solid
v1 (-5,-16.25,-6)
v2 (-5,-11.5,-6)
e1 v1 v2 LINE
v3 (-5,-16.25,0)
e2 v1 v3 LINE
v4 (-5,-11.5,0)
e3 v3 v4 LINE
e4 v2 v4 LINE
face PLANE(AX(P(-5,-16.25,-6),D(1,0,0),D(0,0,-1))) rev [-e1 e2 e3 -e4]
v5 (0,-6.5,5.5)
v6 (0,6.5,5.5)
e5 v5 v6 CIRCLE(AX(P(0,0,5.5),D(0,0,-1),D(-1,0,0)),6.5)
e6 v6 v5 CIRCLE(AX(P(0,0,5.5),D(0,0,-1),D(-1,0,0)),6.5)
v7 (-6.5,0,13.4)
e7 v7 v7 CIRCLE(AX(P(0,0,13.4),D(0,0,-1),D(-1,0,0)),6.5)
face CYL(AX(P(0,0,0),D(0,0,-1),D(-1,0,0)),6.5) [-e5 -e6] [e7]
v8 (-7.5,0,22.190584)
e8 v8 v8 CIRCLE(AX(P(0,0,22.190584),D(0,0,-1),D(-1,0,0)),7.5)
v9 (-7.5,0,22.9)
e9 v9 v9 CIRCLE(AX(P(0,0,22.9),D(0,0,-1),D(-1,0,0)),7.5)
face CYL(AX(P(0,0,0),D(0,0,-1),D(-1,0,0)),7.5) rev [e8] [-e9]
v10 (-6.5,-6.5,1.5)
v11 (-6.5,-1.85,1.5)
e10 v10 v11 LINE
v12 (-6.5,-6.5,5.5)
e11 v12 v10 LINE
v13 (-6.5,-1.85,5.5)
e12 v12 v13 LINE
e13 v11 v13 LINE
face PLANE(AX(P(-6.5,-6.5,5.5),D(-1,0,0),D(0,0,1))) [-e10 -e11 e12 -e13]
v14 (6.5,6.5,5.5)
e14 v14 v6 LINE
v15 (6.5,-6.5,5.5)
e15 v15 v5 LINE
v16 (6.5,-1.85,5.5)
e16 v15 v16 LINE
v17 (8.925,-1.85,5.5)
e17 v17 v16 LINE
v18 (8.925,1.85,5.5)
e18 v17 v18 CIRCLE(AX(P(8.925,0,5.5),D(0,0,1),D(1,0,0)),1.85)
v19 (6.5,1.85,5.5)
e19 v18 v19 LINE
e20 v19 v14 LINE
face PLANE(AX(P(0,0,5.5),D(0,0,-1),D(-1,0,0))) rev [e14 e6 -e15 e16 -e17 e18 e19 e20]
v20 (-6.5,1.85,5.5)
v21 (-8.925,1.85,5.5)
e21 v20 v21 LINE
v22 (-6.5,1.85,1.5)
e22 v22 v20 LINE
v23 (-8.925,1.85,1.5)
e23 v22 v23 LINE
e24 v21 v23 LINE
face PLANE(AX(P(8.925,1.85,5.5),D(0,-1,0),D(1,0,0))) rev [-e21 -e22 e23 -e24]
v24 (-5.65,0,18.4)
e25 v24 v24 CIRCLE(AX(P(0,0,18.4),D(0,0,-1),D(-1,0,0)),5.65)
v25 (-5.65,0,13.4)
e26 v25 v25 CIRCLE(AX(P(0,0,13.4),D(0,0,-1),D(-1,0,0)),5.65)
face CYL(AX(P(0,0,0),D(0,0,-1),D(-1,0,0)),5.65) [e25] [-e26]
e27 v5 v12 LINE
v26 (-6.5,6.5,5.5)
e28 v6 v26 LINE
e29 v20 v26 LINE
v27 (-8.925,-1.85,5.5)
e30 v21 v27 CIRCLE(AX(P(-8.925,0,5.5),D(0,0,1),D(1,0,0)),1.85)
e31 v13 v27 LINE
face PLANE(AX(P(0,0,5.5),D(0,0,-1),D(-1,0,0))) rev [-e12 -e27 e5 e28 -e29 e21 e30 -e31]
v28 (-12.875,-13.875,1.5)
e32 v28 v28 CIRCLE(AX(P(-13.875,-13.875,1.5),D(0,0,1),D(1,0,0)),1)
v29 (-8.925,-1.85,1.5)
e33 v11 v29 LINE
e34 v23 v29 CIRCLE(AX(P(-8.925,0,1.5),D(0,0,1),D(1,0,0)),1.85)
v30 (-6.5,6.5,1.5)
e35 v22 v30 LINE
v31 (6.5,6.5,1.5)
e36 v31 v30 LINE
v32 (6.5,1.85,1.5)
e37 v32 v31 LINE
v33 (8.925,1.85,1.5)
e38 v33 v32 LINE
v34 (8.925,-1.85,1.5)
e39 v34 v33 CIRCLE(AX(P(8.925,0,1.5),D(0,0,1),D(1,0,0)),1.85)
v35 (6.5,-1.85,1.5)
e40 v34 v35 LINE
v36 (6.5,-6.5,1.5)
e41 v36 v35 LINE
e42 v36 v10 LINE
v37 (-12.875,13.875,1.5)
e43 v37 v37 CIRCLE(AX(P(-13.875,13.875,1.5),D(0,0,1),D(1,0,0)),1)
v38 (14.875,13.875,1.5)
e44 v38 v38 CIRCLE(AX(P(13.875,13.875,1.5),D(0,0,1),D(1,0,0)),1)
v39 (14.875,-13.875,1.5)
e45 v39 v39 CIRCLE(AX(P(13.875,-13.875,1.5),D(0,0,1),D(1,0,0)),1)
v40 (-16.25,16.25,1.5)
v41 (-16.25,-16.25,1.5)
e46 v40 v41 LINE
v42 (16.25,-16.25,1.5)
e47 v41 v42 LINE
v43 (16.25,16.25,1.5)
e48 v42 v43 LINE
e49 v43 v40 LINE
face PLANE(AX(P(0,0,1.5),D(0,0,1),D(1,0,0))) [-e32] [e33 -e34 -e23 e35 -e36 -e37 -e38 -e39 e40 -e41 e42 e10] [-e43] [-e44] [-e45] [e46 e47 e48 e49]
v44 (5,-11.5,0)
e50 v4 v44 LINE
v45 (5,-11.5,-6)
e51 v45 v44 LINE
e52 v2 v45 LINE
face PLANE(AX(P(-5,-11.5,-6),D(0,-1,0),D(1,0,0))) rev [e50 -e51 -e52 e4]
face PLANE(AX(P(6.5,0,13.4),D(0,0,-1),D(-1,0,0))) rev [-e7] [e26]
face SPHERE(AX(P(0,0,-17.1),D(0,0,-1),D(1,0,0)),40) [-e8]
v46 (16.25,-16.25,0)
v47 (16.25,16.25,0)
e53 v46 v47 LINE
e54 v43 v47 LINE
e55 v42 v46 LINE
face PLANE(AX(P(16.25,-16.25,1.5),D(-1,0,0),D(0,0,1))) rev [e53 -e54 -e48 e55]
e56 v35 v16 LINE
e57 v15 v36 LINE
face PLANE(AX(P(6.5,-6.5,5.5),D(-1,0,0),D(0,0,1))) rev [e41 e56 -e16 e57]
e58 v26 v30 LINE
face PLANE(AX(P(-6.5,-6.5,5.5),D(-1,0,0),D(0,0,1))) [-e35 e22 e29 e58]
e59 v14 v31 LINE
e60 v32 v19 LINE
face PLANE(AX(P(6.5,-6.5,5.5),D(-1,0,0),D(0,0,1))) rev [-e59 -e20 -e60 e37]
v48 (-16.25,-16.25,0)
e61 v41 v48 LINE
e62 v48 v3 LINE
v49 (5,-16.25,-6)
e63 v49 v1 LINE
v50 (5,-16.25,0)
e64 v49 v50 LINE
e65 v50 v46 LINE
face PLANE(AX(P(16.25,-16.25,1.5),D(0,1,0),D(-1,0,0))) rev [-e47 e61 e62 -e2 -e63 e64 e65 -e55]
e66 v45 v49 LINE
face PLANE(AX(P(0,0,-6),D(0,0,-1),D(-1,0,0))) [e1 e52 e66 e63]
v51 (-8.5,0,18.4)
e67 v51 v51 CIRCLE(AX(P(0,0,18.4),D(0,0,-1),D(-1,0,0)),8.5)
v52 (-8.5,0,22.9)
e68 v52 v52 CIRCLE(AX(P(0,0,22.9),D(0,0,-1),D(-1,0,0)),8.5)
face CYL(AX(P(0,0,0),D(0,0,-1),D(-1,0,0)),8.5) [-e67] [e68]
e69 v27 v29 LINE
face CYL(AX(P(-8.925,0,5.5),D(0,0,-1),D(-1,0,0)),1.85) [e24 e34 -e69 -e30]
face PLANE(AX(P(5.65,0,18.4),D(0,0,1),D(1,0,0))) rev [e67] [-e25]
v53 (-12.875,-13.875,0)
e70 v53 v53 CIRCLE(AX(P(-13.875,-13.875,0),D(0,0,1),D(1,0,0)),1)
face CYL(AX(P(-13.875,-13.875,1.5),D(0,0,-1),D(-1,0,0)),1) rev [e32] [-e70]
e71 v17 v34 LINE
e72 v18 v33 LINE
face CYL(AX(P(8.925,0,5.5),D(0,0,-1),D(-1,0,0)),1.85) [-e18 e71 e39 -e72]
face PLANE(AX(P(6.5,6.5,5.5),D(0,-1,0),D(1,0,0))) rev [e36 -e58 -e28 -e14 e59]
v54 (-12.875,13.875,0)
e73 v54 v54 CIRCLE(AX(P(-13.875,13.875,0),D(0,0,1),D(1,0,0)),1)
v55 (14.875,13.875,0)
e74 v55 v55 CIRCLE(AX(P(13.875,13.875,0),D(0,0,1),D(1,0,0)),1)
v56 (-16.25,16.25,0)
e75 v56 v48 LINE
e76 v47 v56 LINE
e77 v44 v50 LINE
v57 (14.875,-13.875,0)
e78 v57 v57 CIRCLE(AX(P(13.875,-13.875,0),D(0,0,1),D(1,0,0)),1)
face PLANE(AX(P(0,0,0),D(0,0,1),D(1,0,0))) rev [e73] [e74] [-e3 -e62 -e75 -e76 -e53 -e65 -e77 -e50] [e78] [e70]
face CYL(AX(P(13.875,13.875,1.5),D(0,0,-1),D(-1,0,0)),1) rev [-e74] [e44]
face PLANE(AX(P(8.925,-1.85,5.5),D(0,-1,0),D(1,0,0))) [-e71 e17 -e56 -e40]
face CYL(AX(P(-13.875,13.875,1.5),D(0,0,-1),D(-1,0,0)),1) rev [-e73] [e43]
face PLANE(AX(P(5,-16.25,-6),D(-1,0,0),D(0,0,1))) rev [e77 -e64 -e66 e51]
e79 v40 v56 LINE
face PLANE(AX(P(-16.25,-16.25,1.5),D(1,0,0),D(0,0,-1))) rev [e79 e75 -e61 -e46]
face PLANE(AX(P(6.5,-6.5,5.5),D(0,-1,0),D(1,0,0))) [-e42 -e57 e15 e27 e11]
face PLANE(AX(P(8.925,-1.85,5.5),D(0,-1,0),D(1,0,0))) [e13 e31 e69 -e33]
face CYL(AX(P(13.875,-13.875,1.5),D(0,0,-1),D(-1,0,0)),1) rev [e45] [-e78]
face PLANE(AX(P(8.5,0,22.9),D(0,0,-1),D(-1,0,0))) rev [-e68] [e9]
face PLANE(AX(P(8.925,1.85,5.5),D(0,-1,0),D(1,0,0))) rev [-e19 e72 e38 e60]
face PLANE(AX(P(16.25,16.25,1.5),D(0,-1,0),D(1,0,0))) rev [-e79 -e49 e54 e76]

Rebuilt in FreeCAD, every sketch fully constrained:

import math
import FreeCAD as App
import Part
import Sketcher

V = App.Vector

doc = App.newDocument("Part")
body = doc.addObject("PartDesign::Body", "Body")

# Sketch on XY plane
sketch1 = body.newObject("Sketcher::SketchObject", "Sketch")
sketch1.AttachmentSupport = (doc.getObject("XY_Plane"), [""])
sketch1.MapMode = "FlatFace"
sketch1.addGeometry([
    Part.LineSegment(V(-16.25, 16.25, 0), V(-16.25, -16.25, 0)),  # 0
    Part.LineSegment(V(-16.25, -16.25, 0), V(16.25, -16.25, 0)),  # 1
    Part.LineSegment(V(16.25, -16.25, 0), V(16.25, 16.25, 0)),  # 2
    Part.LineSegment(V(16.25, 16.25, 0), V(-16.25, 16.25, 0)),  # 3
    Part.Circle(V(-13.875, -13.875, 0), V(0, 0, 1), 1),  # 4
    Part.Circle(V(13.875, -13.875, 0), V(0, 0, 1), 1),  # 5
    Part.Circle(V(-13.875, 13.875, 0), V(0, 0, 1), 1),  # 6
    Part.Circle(V(13.875, 13.875, 0), V(0, 0, 1), 1),  # 7
], False)
sketch1.addConstraint([
    Sketcher.Constraint("Coincident", 0, 2, 1, 1),
    Sketcher.Constraint("Coincident", 1, 2, 2, 1),
    Sketcher.Constraint("Coincident", 2, 2, 3, 1),
    Sketcher.Constraint("Coincident", 3, 2, 0, 1),
    Sketcher.Constraint("Vertical", 0),
    Sketcher.Constraint("Horizontal", 1),
    Sketcher.Constraint("Vertical", 2),
    Sketcher.Constraint("Horizontal", 3),
    Sketcher.Constraint("Equal", 4, 5),
    Sketcher.Constraint("Equal", 5, 6),
    Sketcher.Constraint("Equal", 6, 7),
    Sketcher.Constraint("Symmetric", 5, 3, 6, 3, -1, 1),
    Sketcher.Constraint("Symmetric", 4, 3, 7, 3, -1, 1),
    Sketcher.Constraint("Symmetric", 0, 2, 2, 2, -1, 1),
    Sketcher.Constraint("Symmetric", 4, 3, 5, 3, -2),
    Sketcher.Constraint("Equal", 3, 0),
    Sketcher.Constraint("Diameter", 4, 2.0),
    Sketcher.Constraint("DistanceX", 1, 1, 1, 2, 32.5),
    Sketcher.Constraint("DistanceX", 4, 3, 5, 3, 27.75),
    Sketcher.Constraint("DistanceY", 4, 3, 6, 3, 27.75),
])
pad1 = body.newObject("PartDesign::Pad", "Pad")
pad1.Profile = sketch1
pad1.Length = 1.5

# Sketch on XY plane
sketch2 = body.newObject("Sketcher::SketchObject", "Sketch001")
sketch2.AttachmentSupport = (doc.getObject("XY_Plane"), [""])
sketch2.MapMode = "FlatFace"
sketch2.AttachmentOffset = App.Placement(V(0, 0, 1.5), App.Rotation())
sketch2.addGeometry([
    Part.LineSegment(V(-6.5, -1.85, 0), V(-6.5, -6.5, 0)),  # 0
    Part.LineSegment(V(-6.5, -6.5, 0), V(6.5, -6.5, 0)),  # 1
    Part.LineSegment(V(6.5, -6.5, 0), V(6.5, -1.85, 0)),  # 2
    Part.LineSegment(V(6.5, -1.85, 0), V(8.925, -1.85, 0)),  # 3
    Part.ArcOfCircle(Part.Circle(V(8.925, 0, 0), V(0, 0, 1), 1.85), math.radians(-90), math.radians(90)),  # 4
    Part.LineSegment(V(8.925, 1.85, 0), V(6.5, 1.85, 0)),  # 5
    Part.LineSegment(V(6.5, 1.85, 0), V(6.5, 6.5, 0)),  # 6
    Part.LineSegment(V(6.5, 6.5, 0), V(-6.5, 6.5, 0)),  # 7
    Part.LineSegment(V(-6.5, 6.5, 0), V(-6.5, 1.85, 0)),  # 8
    Part.LineSegment(V(-6.5, 1.85, 0), V(-8.925, 1.85, 0)),  # 9
    Part.ArcOfCircle(Part.Circle(V(-8.925, 0, 0), V(0, 0, 1), 1.85), math.radians(90), math.radians(270)),  # 10
    Part.LineSegment(V(-8.925, -1.85, 0), V(-6.5, -1.85, 0)),  # 11
], False)
sketch2.addConstraint([
    Sketcher.Constraint("Coincident", 0, 2, 1, 1),
    Sketcher.Constraint("Coincident", 1, 2, 2, 1),
    Sketcher.Constraint("Coincident", 2, 2, 3, 1),
    Sketcher.Constraint("Tangent", 3, 2, 4, 1),
    Sketcher.Constraint("Tangent", 4, 2, 5, 1),
    Sketcher.Constraint("Coincident", 5, 2, 6, 1),
    Sketcher.Constraint("Coincident", 6, 2, 7, 1),
    Sketcher.Constraint("Coincident", 7, 2, 8, 1),
    Sketcher.Constraint("Coincident", 8, 2, 9, 1),
    Sketcher.Constraint("Tangent", 9, 2, 10, 1),
    Sketcher.Constraint("Tangent", 10, 2, 11, 1),
    Sketcher.Constraint("Coincident", 11, 2, 0, 1),
    Sketcher.Constraint("Vertical", 0),
    Sketcher.Constraint("Horizontal", 1),
    Sketcher.Constraint("Vertical", 2),
    Sketcher.Constraint("Horizontal", 3),
    Sketcher.Constraint("Horizontal", 5),
    Sketcher.Constraint("Vertical", 6),
    Sketcher.Constraint("Horizontal", 7),
    Sketcher.Constraint("Vertical", 8),
    Sketcher.Constraint("Horizontal", 9),
    Sketcher.Constraint("Horizontal", 11),
    Sketcher.Constraint("Equal", 4, 10),
    Sketcher.Constraint("Symmetric", 4, 3, 10, 3, -1, 1),
    Sketcher.Constraint("Symmetric", 0, 2, 6, 2, -1, 1),
    Sketcher.Constraint("Symmetric", 5, 2, 8, 2, -2),
    Sketcher.Constraint("Vertical", 2, 2, 5, 2),
    Sketcher.Constraint("DistanceX", 1, 1, 1, 2, 13.0),
    Sketcher.Constraint("Radius", 4, 1.85),
    Sketcher.Constraint("DistanceY", 0, 2, 7, 2, 13.0),
    Sketcher.Constraint("DistanceX", 3, 1, 3, 2, 2.425),
])
pad2 = body.newObject("PartDesign::Pad", "Pad001")
pad2.Profile = sketch2
pad2.Length = 4

# Sketch on XZ plane
sketch3 = body.newObject("Sketcher::SketchObject", "Sketch002")
sketch3.AttachmentSupport = (doc.getObject("XZ_Plane"), [""])
sketch3.MapMode = "FlatFace"
sketch3.addGeometry([
    Part.LineSegment(V(6.5, 5.5, 0), V(0, 5.5, 0)),  # 0
    Part.LineSegment(V(0, 5.5, 0), V(0, 22.9, 0)),  # 1
    Part.ArcOfCircle(Part.Circle(V(0, -17.1, 0), V(0, 0, 1), 40), math.radians(79.193077), math.radians(90)),  # 2
    Part.LineSegment(V(7.5, 22.190584, 0), V(7.5, 22.9, 0)),  # 3
    Part.LineSegment(V(7.5, 22.9, 0), V(8.5, 22.9, 0)),  # 4
    Part.LineSegment(V(8.5, 22.9, 0), V(8.5, 18.4, 0)),  # 5
    Part.LineSegment(V(8.5, 18.4, 0), V(5.65, 18.4, 0)),  # 6
    Part.LineSegment(V(5.65, 18.4, 0), V(5.65, 13.4, 0)),  # 7
    Part.LineSegment(V(5.65, 13.4, 0), V(6.5, 13.4, 0)),  # 8
    Part.LineSegment(V(6.5, 13.4, 0), V(6.5, 5.5, 0)),  # 9
], False)
sketch3.addConstraint([
    Sketcher.Constraint("Coincident", 0, 2, 1, 1),
    Sketcher.Constraint("Coincident", 1, 2, 2, 2),
    Sketcher.Constraint("Coincident", 2, 1, 3, 1),
    Sketcher.Constraint("Coincident", 3, 2, 4, 1),
    Sketcher.Constraint("Coincident", 4, 2, 5, 1),
    Sketcher.Constraint("Coincident", 5, 2, 6, 1),
    Sketcher.Constraint("Coincident", 6, 2, 7, 1),
    Sketcher.Constraint("Coincident", 7, 2, 8, 1),
    Sketcher.Constraint("Coincident", 8, 2, 9, 1),
    Sketcher.Constraint("Coincident", 9, 2, 0, 1),
    Sketcher.Constraint("Horizontal", 0),
    Sketcher.Constraint("Vertical", 1),
    Sketcher.Constraint("Vertical", 3),
    Sketcher.Constraint("Horizontal", 4),
    Sketcher.Constraint("Vertical", 5),
    Sketcher.Constraint("Horizontal", 6),
    Sketcher.Constraint("Vertical", 7),
    Sketcher.Constraint("Horizontal", 8),
    Sketcher.Constraint("Vertical", 9),
    Sketcher.Constraint("PointOnObject", 2, 3, -2),
    Sketcher.Constraint("PointOnObject", 0, 2, -2),
    Sketcher.Constraint("Horizontal", 1, 2, 3, 2),
    Sketcher.Constraint("Radius", 2, 40.0),
    Sketcher.Constraint("DistanceX", 4, 1, 4, 2, 1.0),
    Sketcher.Constraint("DistanceY", 7, 2, 7, 1, 5.0),
    Sketcher.Constraint("DistanceX", 0, 2, 0, 1, 6.5),
    Sketcher.Constraint("DistanceY", 1, 1, 1, 2, 17.4),
    Sketcher.Constraint("DistanceY", 5, 2, 5, 1, 4.5),
    Sketcher.Constraint("DistanceX", 8, 2, 5, 2, 2.0),
    Sketcher.Constraint("DistanceX", 6, 2, 6, 1, 2.85),
    Sketcher.Constraint("DistanceY", 2, 3, -1, 1, 17.1),
])
revolution = body.newObject("PartDesign::Revolution", "Revolution")
revolution.Profile = sketch3
revolution.ReferenceAxis = (sketch3, ["V_Axis"])
revolution.Angle = 360

# Sketch on XY plane
sketch4 = body.newObject("Sketcher::SketchObject", "Sketch003")
sketch4.AttachmentSupport = (doc.getObject("XY_Plane"), [""])
sketch4.MapMode = "FlatFace"
sketch4.addGeometry([
    Part.LineSegment(V(5, -11.5, 0), V(5, -16.25, 0)),
    Part.LineSegment(V(5, -16.25, 0), V(-5, -16.25, 0)),
    Part.LineSegment(V(-5, -16.25, 0), V(-5, -11.5, 0)),
    Part.LineSegment(V(-5, -11.5, 0), V(5, -11.5, 0)),
], False)
sketch4.addConstraint([
    Sketcher.Constraint("Coincident", 0, 2, 1, 1),
    Sketcher.Constraint("Coincident", 1, 2, 2, 1),
    Sketcher.Constraint("Coincident", 2, 2, 3, 1),
    Sketcher.Constraint("Coincident", 3, 2, 0, 1),
    Sketcher.Constraint("Vertical", 0),
    Sketcher.Constraint("Horizontal", 1),
    Sketcher.Constraint("Vertical", 2),
    Sketcher.Constraint("Horizontal", 3),
    Sketcher.Constraint("DistanceX", 1, 2, 1, 1, 10.0),
    Sketcher.Constraint("DistanceX", -1, 1, 0, 2, 5.0),
    Sketcher.Constraint("DistanceY", 0, 2, 0, 1, 4.75),
    Sketcher.Constraint("DistanceY", 2, 2, -1, 1, 11.5),
])
pad3 = body.newObject("PartDesign::Pad", "Pad002")
pad3.Profile = sketch4
pad3.Length = 6
pad3.Reversed = True

doc.recompute()
